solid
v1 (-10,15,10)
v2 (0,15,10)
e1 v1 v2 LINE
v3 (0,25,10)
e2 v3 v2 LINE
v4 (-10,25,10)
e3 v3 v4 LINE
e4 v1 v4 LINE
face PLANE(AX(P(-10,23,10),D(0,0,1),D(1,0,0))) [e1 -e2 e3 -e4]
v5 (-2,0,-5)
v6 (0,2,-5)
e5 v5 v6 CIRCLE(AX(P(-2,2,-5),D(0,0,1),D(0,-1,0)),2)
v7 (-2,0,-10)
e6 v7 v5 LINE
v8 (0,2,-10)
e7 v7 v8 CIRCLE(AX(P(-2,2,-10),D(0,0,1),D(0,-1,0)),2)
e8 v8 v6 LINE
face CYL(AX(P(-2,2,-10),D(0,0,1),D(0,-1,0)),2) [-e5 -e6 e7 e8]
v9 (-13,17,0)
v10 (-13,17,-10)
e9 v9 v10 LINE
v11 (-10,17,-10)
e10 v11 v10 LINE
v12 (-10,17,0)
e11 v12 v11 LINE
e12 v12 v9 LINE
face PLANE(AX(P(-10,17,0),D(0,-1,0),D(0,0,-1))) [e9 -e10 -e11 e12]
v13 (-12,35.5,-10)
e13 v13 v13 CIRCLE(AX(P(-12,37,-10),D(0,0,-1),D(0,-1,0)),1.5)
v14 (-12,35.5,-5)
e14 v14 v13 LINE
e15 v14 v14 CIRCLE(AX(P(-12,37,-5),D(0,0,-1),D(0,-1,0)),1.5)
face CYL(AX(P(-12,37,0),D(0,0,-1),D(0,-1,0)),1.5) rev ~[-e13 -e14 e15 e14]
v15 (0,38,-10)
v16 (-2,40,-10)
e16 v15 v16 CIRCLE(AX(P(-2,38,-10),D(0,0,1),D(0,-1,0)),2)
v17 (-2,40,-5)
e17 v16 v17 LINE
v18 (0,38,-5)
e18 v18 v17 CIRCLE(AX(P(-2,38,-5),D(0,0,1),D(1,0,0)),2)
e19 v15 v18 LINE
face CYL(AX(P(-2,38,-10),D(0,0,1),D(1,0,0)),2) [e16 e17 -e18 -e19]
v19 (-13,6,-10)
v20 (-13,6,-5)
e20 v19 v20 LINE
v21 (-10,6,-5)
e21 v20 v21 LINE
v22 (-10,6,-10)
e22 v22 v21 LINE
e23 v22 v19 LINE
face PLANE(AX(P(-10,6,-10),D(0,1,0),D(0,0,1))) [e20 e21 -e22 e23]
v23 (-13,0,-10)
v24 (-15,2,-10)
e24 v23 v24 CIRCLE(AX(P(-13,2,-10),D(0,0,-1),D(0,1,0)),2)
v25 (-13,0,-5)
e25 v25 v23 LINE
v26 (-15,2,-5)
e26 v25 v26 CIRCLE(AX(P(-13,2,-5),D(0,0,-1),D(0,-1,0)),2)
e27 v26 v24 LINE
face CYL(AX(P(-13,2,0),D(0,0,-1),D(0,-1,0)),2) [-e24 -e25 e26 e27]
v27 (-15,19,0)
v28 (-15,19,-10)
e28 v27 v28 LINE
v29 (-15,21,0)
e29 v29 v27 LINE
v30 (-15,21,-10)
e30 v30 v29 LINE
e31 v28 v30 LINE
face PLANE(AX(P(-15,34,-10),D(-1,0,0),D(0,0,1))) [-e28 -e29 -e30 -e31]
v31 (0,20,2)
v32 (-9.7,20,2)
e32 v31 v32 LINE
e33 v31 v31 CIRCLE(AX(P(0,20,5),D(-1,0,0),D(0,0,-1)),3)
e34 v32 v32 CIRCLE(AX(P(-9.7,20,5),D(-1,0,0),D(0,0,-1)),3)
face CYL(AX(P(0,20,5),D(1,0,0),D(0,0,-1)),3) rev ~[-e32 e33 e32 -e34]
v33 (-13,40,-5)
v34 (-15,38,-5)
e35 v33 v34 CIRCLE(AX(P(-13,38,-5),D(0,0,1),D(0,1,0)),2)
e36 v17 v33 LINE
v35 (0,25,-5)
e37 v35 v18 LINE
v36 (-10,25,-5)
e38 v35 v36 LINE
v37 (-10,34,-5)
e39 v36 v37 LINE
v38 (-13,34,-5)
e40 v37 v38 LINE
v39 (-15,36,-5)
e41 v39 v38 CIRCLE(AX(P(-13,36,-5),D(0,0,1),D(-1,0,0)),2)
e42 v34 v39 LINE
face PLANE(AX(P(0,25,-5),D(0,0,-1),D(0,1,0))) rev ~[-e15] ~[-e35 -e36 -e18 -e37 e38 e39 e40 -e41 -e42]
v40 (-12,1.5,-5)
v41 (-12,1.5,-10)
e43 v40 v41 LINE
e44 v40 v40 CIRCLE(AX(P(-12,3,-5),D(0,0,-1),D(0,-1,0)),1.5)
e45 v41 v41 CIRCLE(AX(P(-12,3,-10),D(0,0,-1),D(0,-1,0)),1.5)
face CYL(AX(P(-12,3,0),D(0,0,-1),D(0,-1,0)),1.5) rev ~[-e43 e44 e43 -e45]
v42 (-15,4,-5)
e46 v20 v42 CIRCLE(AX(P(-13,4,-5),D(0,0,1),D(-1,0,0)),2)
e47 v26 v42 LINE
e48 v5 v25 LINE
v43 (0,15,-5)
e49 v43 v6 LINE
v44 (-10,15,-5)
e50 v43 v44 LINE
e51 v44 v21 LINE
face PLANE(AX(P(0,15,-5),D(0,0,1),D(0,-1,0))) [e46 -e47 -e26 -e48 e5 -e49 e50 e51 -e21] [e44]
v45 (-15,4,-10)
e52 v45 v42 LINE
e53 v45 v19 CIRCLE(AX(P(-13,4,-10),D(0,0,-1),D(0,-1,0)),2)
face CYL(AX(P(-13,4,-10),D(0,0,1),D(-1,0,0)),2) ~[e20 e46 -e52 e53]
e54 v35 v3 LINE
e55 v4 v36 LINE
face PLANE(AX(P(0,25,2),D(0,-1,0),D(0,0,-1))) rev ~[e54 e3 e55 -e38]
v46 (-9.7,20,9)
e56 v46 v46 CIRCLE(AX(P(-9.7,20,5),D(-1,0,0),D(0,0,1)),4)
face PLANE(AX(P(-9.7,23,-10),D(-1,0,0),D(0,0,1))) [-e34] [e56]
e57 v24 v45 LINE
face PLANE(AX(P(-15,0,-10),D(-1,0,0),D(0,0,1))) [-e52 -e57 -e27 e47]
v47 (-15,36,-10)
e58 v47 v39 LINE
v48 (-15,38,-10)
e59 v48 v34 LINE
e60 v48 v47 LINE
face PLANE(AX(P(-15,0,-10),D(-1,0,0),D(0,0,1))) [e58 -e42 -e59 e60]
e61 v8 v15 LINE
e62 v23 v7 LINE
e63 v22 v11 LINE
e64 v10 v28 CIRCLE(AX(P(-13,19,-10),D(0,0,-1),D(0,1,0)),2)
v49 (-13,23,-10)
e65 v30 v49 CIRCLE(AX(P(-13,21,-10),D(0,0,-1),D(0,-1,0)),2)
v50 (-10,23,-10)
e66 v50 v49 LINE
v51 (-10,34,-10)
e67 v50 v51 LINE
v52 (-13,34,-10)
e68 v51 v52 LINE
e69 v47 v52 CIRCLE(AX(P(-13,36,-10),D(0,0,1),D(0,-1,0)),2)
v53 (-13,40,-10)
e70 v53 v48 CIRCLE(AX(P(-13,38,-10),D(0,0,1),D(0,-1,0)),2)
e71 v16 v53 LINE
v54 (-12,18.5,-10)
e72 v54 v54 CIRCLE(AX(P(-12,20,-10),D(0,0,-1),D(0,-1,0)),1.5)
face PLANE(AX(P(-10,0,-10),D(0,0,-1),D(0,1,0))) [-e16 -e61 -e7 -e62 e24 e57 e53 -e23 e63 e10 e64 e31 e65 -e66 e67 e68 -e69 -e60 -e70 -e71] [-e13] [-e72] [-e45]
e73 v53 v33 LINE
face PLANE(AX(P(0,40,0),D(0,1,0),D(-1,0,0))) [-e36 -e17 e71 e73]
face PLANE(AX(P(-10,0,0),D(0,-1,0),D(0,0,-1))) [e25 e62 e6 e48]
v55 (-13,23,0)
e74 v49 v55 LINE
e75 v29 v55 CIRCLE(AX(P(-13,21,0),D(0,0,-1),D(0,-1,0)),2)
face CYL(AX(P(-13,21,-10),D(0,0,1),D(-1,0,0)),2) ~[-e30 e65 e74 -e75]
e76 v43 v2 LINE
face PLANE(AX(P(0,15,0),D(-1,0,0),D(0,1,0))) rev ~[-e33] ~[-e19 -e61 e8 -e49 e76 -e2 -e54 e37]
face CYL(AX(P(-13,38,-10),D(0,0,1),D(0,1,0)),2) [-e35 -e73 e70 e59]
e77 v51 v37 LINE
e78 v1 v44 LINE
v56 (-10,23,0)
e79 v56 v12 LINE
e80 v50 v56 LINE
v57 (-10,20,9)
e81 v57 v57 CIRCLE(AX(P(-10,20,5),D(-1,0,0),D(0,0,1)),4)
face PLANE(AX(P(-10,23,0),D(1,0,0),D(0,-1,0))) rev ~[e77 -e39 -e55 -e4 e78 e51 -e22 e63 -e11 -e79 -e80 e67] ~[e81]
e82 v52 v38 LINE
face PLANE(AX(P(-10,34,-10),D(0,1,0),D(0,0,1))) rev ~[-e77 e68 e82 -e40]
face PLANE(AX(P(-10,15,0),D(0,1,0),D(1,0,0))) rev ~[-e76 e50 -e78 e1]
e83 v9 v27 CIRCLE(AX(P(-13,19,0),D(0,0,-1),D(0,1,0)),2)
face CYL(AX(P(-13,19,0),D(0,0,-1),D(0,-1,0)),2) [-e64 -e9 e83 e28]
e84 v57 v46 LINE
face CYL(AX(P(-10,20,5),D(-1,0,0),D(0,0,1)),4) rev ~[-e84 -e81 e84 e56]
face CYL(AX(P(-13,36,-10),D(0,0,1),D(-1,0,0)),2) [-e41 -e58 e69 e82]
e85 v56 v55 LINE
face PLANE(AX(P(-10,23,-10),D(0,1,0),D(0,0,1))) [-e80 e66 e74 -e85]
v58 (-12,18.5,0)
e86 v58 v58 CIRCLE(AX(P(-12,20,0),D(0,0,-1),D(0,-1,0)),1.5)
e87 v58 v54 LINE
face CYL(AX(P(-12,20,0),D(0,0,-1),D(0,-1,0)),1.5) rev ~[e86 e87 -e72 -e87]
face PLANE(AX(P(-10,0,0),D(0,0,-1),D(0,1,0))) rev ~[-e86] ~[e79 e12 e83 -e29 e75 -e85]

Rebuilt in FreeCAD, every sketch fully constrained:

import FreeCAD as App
import Part
import Sketcher
Q = App.Units.Quantity


def edges_at(feature, points):
    """Names of the edges that pass closest to the given points."""
    edges = feature.Shape.Edges
    near = lambda p: min(range(len(edges)), key=lambda i: edges[i].distToShape(Part.Vertex(*p))[0])
    return sorted({f"Edge{near(p) + 1}" for p in points})


def add_polygon(sketch, points):
    """Adds a closed chain of lines whose ends are joined by coincident constraints."""
    first, n = sketch.GeometryCount, len(points)
    for a, b in zip(points, points[1:] + points[:1]):
        sketch.addGeometry(Part.LineSegment(App.Vector(*a, 0), App.Vector(*b, 0)), False)
    for i in range(n):
        sketch.addConstraint(Sketcher.Constraint("Coincident", first + i, 2, first + (i + 1) % n, 1))

doc = App.newDocument("Part")
body = doc.addObject("PartDesign::Body", "Body")

sketch1 = body.newObject("Sketcher::SketchObject", "Sketch")
sketch1.AttachmentSupport = (doc.getObject("XZ_Plane"), [""])
sketch1.MapMode = "FlatFace"
add_polygon(sketch1, [(-10, 0), (0, 0), (0, -10), (-10, -10)])
sketch1.addConstraint(Sketcher.Constraint("Horizontal", 0))
sketch1.addConstraint(Sketcher.Constraint("Vertical", 1))
sketch1.addConstraint(Sketcher.Constraint("Horizontal", 2))
sketch1.addConstraint(Sketcher.Constraint("Vertical", 3))
sketch1.addConstraint(Sketcher.Constraint("Coincident", 0, 2, -1, 1))
sketch1.addConstraint(Sketcher.Constraint("Equal", 2, 1))
sketch1.addConstraint(Sketcher.Constraint("DistanceX", 0, 1, 0, 2, Q("10 mm")))
pad1 = body.newObject("PartDesign::Pad", "Pad")
pad1.Profile = sketch1
pad1.Length = 40
pad1.Reversed = True

sketch2 = body.newObject("Sketcher::SketchObject", "Sketch001")
sketch2.AttachmentSupport = (doc.getObject("YZ_Plane"), [""])
sketch2.MapMode = "FlatFace"
sketch2.AttachmentOffset = App.Placement(App.Vector(0, 0, -10), App.Rotation())
add_polygon(sketch2, [(40, 0), (40, -10), (34, -10), (34, 0)])
sketch2.addConstraint(Sketcher.Constraint("Vertical", 0))
sketch2.addConstraint(Sketcher.Constraint("Horizontal", 1))
sketch2.addConstraint(Sketcher.Constraint("Vertical", 2))
sketch2.addConstraint(Sketcher.Constraint("Horizontal", 3))
sketch2.addConstraint(Sketcher.Constraint("PointOnObject", 2, 2, -1))
sketch2.addConstraint(Sketcher.Constraint("DistanceX", 1, 2, 1, 1, Q("6 mm")))
sketch2.addConstraint(Sketcher.Constraint("DistanceY", 0, 2, 0, 1, Q("10 mm")))
sketch2.addConstraint(Sketcher.Constraint("DistanceX", -1, 1, 0, 2, Q("40 mm")))
pad2 = body.newObject("PartDesign::Pad", "Pad001")
pad2.Profile = sketch2
pad2.Length = 5
pad2.Reversed = True

sketch3 = body.newObject("Sketcher::SketchObject", "Sketch002")
sketch3.AttachmentSupport = (doc.getObject("YZ_Plane"), [""])
sketch3.MapMode = "FlatFace"
sketch3.AttachmentOffset = App.Placement(App.Vector(0, 0, -10), App.Rotation())
add_polygon(sketch3, [(0, -10), (0, 0), (6, 0), (6, -10)])
sketch3.addConstraint(Sketcher.Constraint("Vertical", 0))
sketch3.addConstraint(Sketcher.Constraint("Horizontal", 1))
sketch3.addConstraint(Sketcher.Constraint("Vertical", 2))
sketch3.addConstraint(Sketcher.Constraint("Horizontal", 3))
sketch3.addConstraint(Sketcher.Constraint("Coincident", 0, 2, -1, 1))
sketch3.addConstraint(Sketcher.Constraint("DistanceX", 1, 1, 1, 2, Q("6 mm")))
sketch3.addConstraint(Sketcher.Constraint("DistanceY", 0, 1, 0, 2, Q("10 mm")))
pad3 = body.newObject("PartDesign::Pad", "Pad002")
pad3.Profile = sketch3
pad3.Length = 5
pad3.Reversed = True

sketch4 = body.newObject("Sketcher::SketchObject", "Sketch003")
sketch4.AttachmentSupport = (doc.getObject("YZ_Plane"), [""])
sketch4.MapMode = "FlatFace"
sketch4.AttachmentOffset = App.Placement(App.Vector(0, 0, -10), App.Rotation())
add_polygon(sketch4, [(17, -10), (17, 0), (23, 0), (23, -10)])
sketch4.addConstraint(Sketcher.Constraint("Vertical", 0))
sketch4.addConstraint(Sketcher.Constraint("Horizontal", 1))
sketch4.addConstraint(Sketcher.Constraint("Vertical", 2))
sketch4.addConstraint(Sketcher.Constraint("Horizontal", 3))
sketch4.addConstraint(Sketcher.Constraint("PointOnObject", 0, 2, -1))
sketch4.addConstraint(Sketcher.Constraint("DistanceX", 1, 1, 1, 2, Q("6 mm")))
sketch4.addConstraint(Sketcher.Constraint("DistanceY", 0, 1, 0, 2, Q("10 mm")))
sketch4.addConstraint(Sketcher.Constraint("DistanceX", -1, 1, 0, 2, Q("17 mm")))
pad4 = body.newObject("PartDesign::Pad", "Pad003")
pad4.Profile = sketch4
pad4.Length = 5
pad4.Reversed = True

sketch5 = body.newObject("Sketcher::SketchObject", "Sketch004")
sketch5.AttachmentSupport = (doc.getObject("XY_Plane"), [""])
sketch5.MapMode = "FlatFace"
sketch5.addGeometry(Part.Circle(App.Vector(-12, 37, 0), App.Vector(0, 0, 1), 1.5), False)
sketch5.addGeometry(Part.Circle(App.Vector(-12, 20, 0), App.Vector(0, 0, 1), 1.5), False)
sketch5.addGeometry(Part.Circle(App.Vector(-12, 3, 0), App.Vector(0, 0, 1), 1.5), False)
sketch5.addConstraint(Sketcher.Constraint("Equal", 0, 1))
sketch5.addConstraint(Sketcher.Constraint("Equal", 1, 2))
sketch5.addConstraint(Sketcher.Constraint("Vertical", 0, 3, 1, 3))
sketch5.addConstraint(Sketcher.Constraint("Vertical", 1, 3, 2, 3))
sketch5.addConstraint(Sketcher.Constraint("Diameter", 0, Q("3 mm")))
sketch5.addConstraint(Sketcher.Constraint("DistanceX", 0, 3, -1, 1, Q("12 mm")))
sketch5.addConstraint(Sketcher.Constraint("DistanceY", -1, 1, 0, 3, Q("37 mm")))
sketch5.addConstraint(Sketcher.Constraint("DistanceY", -1, 1, 1, 3, Q("20 mm")))
sketch5.addConstraint(Sketcher.Constraint("DistanceY", -1, 1, 2, 3, Q("3 mm")))
doc.recompute()
hole = body.newObject("PartDesign::Hole", "Hole")
hole.Profile = sketch5
hole.ThreadType = "None"
hole.Diameter = 3
hole.DepthType = "ThroughAll"
doc.recompute()

fillet = body.newObject("PartDesign::Fillet", "Fillet")
fillet.Base = (hole, edges_at(hole, [
    (-15, 17, -5),
    (-15, 23, -5),
    (-15, 40, -5),
    (-15, 34, -5),
    (-15, 6, -5),
    (-15, 0, -5),
    (0, 40, -5),
    (0, 0, -5),
]))
fillet.Radius = 2

sketch6 = body.newObject("Sketcher::SketchObject", "Sketch005")
sketch6.AttachmentSupport = (doc.getObject("XY_Plane"), [""])
sketch6.MapMode = "FlatFace"
add_polygon(sketch6, [(-10, 15), (0, 15), (0, 25), (-10, 25)])
sketch6.addConstraint(Sketcher.Constraint("Horizontal", 0))
sketch6.addConstraint(Sketcher.Constraint("Vertical", 1))
sketch6.addConstraint(Sketcher.Constraint("Horizontal", 2))
sketch6.addConstraint(Sketcher.Constraint("Vertical", 3))
sketch6.addConstraint(Sketcher.Constraint("PointOnObject", 0, 2, -2))
sketch6.addConstraint(Sketcher.Constraint("Equal", 2, 1))
sketch6.addConstraint(Sketcher.Constraint("DistanceX", 0, 1, 0, 2, Q("10 mm")))
sketch6.addConstraint(Sketcher.Constraint("DistanceY", -1, 1, 0, 2, Q("15 mm")))
pad5 = body.newObject("PartDesign::Pad", "Pad004")
pad5.Profile = sketch6
pad5.Length = 10

sketch7 = body.newObject("Sketcher::SketchObject", "Sketch006")
sketch7.AttachmentSupport = (doc.getObject("YZ_Plane"), [""])
sketch7.MapMode = "FlatFace"
sketch7.addGeometry(Part.Circle(App.Vector(20, 5, 0), App.Vector(0, 0, 1), 3), False)
sketch7.addConstraint(Sketcher.Constraint("Diameter", 0, Q("6 mm")))
sketch7.addConstraint(Sketcher.Constraint("DistanceY", -1, 1, 0, 3, Q("5 mm")))
sketch7.addConstraint(Sketcher.Constraint("DistanceX", -1, 1, 0, 3, Q("20 mm")))
pocket1 = body.newObject("PartDesign::Pocket", "Pocket")
pocket1.Profile = sketch7
pocket1.Length = 10

sketch8 = body.newObject("Sketcher::SketchObject", "Sketch007")
sketch8.AttachmentSupport = (doc.getObject("YZ_Plane"), [""])
sketch8.MapMode = "FlatFace"
add_polygon(sketch8, [(25, 2), (25, -5), (40, -5), (40, 2)])
add_polygon(sketch8, [(15, -5), (15, 2), (0, 2), (0, -5)])
sketch8.addConstraint(Sketcher.Constraint("Vertical", 0))
sketch8.addConstraint(Sketcher.Constraint("Horizontal", 1))
sketch8.addConstraint(Sketcher.Constraint("Vertical", 2))
sketch8.addConstraint(Sketcher.Constraint("Horizontal", 3))
sketch8.addConstraint(Sketcher.Constraint("Vertical", 4))
sketch8.addConstraint(Sketcher.Constraint("Horizontal", 5))
sketch8.addConstraint(Sketcher.Constraint("Vertical", 6))
sketch8.addConstraint(Sketcher.Constraint("Horizontal", 7))
sketch8.addConstraint(Sketcher.Constraint("PointOnObject", 5, 2, -2))
sketch8.addConstraint(Sketcher.Constraint("Horizontal", 3, 2, 4, 2))
sketch8.addConstraint(Sketcher.Constraint("Horizontal", 1, 2, 6, 2))
sketch8.addConstraint(Sketcher.Constraint("Equal", 3, 5))
sketch8.addConstraint(Sketcher.Constraint("DistanceY", 0, 2, 0, 1, Q("7 mm")))
sketch8.addConstraint(Sketcher.Constraint("DistanceX", 1, 1, 1, 2, Q("15 mm")))
sketch8.addConstraint(Sketcher.Constraint("DistanceX", -1, 1, 0, 2, Q("25 mm")))
sketch8.addConstraint(Sketcher.Constraint("DistanceY", 0, 2, -1, 1, Q("5 mm")))
pocket2 = body.newObject("PartDesign::Pocket", "Pocket001")
pocket2.Profile = sketch8
pocket2.Length = 30

sketch9 = body.newObject("Sketcher::SketchObject", "Sketch008")
sketch9.AttachmentSupport = (doc.getObject("YZ_Plane"), [""])
sketch9.MapMode = "FlatFace"
sketch9.AttachmentOffset = App.Placement(App.Vector(0, 0, -10), App.Rotation())
sketch9.addGeometry(Part.Circle(App.Vector(20, 5, 0), App.Vector(0, 0, 1), 4), False)
sketch9.addGeometry(Part.Circle(App.Vector(20, 5, 0), App.Vector(0, 0, 1), 3), False)
sketch9.addConstraint(Sketcher.Constraint("Coincident", 1, 3, 0, 3))
sketch9.addConstraint(Sketcher.Constraint("Diameter", 0, Q("8 mm")))
sketch9.addConstraint(Sketcher.Constraint("Diameter", 1, Q("6 mm")))
sketch9.addConstraint(Sketcher.Constraint("DistanceX", -1, 1, 0, 3, Q("20 mm")))
sketch9.addConstraint(Sketcher.Constraint("DistanceY", -1, 1, 0, 3, Q("5 mm")))
pocket3 = body.newObject("PartDesign::Pocket", "Pocket002")
pocket3.Profile = sketch9
pocket3.Length = 0.3
pocket3.Reversed = True

doc.recompute()
